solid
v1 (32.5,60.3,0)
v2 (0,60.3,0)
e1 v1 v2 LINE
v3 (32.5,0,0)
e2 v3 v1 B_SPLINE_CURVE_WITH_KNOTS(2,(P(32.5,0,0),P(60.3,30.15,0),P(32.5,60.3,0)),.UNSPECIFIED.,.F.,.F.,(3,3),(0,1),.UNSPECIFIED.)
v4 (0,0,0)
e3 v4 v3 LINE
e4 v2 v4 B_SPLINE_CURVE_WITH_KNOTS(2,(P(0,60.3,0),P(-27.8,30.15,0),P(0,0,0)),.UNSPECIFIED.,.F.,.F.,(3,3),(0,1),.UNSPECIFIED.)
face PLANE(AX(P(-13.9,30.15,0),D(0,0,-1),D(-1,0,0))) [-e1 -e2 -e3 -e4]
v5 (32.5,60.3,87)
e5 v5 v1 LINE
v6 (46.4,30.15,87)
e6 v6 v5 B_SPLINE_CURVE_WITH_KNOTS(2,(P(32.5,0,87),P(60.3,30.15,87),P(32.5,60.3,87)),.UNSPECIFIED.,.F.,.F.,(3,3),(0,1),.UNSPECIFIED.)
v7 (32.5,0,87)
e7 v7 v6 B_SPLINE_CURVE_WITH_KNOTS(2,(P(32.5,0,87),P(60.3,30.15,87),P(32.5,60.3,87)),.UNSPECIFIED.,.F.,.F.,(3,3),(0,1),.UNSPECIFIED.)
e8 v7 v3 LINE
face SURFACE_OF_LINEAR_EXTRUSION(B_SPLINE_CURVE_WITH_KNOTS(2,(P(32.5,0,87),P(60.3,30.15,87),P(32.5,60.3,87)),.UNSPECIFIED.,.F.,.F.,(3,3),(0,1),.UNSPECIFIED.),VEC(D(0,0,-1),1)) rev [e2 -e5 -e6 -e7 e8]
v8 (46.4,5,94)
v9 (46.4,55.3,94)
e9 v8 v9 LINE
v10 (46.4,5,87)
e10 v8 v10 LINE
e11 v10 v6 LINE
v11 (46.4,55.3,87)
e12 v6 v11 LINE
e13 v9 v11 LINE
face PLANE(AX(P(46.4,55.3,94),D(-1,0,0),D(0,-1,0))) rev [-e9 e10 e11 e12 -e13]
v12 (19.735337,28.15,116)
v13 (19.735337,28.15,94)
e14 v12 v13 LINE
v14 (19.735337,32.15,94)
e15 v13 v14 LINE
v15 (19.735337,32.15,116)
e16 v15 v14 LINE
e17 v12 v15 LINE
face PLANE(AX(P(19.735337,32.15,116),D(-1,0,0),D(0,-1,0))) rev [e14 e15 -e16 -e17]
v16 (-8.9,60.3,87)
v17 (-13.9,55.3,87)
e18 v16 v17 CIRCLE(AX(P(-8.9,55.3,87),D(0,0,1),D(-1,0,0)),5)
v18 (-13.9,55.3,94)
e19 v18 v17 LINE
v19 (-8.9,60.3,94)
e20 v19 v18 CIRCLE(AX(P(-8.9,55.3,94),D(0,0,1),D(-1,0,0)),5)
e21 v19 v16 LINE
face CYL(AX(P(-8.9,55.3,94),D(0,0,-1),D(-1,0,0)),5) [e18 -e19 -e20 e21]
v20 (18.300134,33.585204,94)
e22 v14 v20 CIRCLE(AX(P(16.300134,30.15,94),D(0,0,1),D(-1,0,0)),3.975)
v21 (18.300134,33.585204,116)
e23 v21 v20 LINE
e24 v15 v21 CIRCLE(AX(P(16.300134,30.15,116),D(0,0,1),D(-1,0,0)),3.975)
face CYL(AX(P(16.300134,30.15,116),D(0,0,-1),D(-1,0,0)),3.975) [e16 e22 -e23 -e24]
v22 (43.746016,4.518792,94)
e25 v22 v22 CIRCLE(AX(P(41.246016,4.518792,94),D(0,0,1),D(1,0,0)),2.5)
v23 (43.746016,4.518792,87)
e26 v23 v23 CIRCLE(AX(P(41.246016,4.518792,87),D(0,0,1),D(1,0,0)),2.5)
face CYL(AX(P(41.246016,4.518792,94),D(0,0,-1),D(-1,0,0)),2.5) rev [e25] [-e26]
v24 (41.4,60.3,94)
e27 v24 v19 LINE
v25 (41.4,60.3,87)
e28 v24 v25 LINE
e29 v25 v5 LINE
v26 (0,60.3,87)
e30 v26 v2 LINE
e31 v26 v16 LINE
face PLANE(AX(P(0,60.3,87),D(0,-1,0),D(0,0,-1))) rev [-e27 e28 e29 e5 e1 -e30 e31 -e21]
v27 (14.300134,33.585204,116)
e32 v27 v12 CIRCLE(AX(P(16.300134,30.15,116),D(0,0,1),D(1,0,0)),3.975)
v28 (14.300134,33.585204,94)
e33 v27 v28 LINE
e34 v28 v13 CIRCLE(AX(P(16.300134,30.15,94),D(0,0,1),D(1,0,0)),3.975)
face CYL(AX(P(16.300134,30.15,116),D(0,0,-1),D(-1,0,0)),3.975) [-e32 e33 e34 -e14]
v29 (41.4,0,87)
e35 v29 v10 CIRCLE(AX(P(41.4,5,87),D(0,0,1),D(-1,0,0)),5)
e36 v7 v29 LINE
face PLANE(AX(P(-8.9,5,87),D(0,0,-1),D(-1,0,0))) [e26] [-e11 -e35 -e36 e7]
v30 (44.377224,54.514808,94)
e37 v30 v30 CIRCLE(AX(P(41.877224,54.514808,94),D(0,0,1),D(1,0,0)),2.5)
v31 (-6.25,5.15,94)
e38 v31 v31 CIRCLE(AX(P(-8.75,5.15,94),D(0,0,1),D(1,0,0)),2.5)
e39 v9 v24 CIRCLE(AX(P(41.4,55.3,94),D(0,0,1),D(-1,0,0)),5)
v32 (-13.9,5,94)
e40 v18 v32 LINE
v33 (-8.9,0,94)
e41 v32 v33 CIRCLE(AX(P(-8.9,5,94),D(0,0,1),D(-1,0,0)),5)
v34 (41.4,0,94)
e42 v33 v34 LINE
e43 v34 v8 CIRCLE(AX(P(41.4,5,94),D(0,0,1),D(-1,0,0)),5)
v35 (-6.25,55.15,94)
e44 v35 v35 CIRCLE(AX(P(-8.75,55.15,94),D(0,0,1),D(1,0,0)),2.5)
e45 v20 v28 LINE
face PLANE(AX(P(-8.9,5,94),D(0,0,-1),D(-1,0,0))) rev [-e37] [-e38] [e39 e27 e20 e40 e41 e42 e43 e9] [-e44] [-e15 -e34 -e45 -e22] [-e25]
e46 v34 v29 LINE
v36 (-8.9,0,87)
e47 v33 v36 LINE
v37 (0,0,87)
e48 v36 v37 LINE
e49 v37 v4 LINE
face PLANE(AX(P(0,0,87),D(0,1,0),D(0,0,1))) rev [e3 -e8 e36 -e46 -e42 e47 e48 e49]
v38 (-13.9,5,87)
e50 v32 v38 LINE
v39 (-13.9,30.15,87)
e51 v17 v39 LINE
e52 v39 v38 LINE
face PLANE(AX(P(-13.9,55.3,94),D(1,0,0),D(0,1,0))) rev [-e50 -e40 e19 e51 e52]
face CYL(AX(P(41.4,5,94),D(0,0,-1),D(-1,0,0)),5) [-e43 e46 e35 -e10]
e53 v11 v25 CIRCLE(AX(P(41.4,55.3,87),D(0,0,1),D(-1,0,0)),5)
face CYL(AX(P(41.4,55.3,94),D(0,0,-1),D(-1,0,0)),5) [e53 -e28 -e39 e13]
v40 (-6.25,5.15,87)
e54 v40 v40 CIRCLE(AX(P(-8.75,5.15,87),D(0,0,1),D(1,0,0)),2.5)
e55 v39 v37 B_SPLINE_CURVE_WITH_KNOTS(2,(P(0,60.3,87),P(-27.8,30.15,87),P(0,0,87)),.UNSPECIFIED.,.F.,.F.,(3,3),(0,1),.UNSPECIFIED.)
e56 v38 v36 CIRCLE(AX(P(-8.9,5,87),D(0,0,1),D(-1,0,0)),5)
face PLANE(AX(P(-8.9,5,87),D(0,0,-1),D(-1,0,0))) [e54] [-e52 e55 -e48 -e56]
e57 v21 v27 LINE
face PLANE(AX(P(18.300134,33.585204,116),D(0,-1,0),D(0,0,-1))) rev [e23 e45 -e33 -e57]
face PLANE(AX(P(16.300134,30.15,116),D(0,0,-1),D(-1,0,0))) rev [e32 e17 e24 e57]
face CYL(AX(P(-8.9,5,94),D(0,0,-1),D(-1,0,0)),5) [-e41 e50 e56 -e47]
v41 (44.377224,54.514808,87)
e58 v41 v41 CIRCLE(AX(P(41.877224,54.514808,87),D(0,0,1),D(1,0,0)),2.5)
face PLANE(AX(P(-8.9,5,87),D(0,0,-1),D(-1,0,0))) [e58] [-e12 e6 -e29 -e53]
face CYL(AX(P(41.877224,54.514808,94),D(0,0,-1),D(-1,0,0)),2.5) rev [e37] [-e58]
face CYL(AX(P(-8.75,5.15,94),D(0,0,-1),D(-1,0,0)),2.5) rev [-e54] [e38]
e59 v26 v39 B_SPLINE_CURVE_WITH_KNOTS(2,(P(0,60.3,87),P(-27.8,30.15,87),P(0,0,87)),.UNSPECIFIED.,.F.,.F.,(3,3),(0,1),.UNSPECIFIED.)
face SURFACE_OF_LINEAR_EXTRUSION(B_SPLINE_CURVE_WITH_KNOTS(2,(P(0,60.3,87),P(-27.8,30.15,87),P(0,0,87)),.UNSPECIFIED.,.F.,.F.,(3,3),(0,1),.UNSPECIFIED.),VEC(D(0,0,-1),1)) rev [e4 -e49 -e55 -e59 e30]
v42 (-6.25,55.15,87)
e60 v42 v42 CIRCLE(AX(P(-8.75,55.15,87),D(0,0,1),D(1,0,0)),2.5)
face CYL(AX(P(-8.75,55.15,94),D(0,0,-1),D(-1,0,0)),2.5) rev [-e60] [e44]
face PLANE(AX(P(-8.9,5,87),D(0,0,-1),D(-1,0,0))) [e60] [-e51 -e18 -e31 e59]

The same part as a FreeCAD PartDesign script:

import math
import FreeCAD as App
import Part
import Sketcher
from FreeCAD import Vector

doc = App.newDocument("Part")
params = doc.addObject("Spreadsheet::Sheet", "Params")
for row, (alias, value) in enumerate([
    ("pad1_length", "87 mm"),
    ("sketch2_diameter", "5 mm"),
    ("sketch2_radius", "5 mm"),
    ("sketch2_width", "50.3 mm"),
    ("pad2_length", "7 mm"),
    ("sketch3_width", "4 mm"),
    ("pad3_length", "22 mm"),
], start=1):
    params.set(f"A{row}", alias)
    params.set(f"B{row}", "=" + value)
    params.setAlias(f"B{row}", alias)

body = doc.addObject("PartDesign::Body", "Body")

# Sketch on XY plane
sketch1 = body.newObject("Sketcher::SketchObject", "Sketch")
sketch1.AttachmentSupport = (doc.getObject("XY_Plane"), [""])
sketch1.MapMode = "FlatFace"
sketch1.addGeometry([
    Part.LineSegment(Vector(0, 0, 0), Vector(32.5, 0, 0)),
    Part.BSplineCurve([Vector(32.5, 60.3, 0), Vector(60.3, 30.15, 0), Vector(32.5, 0, 0)], [3, 3], [0, 1], False, 2, [1, 1, 1], False),
    Part.LineSegment(Vector(32.5, 60.3, 0), Vector(0, 60.3, 0)),
    Part.BSplineCurve([Vector(0, 60.3, 0), Vector(-27.8, 30.15, 0), Vector(0, 0, 0)], [3, 3], [0, 1], False, 2, [1, 1, 1], False),
], False)
sketch1.addConstraint([
    Sketcher.Constraint("Block", 1),
    Sketcher.Constraint("Block", 3),
    Sketcher.Constraint("Coincident", 0, 2, 1, 2),
    Sketcher.Constraint("Coincident", 1, 1, 2, 1),
    Sketcher.Constraint("Coincident", 2, 2, 3, 1),
    Sketcher.Constraint("Coincident", 3, 2, 0, 1),
])
pad1 = body.newObject("PartDesign::Pad", "Pad")
pad1.Profile = sketch1
pad1.setExpression("Length", "Params.pad1_length")

# Sketch on XY plane
sketch2 = body.newObject("Sketcher::SketchObject", "Sketch001")
sketch2.AttachmentSupport = (doc.getObject("XY_Plane"), [""])
sketch2.MapMode = "FlatFace"
sketch2.AttachmentOffset = App.Placement(Vector(0, 0, 87), App.Rotation())
sketch2.addGeometry([
    Part.LineSegment(Vector(-13.9, 55.3, 0), Vector(-13.9, 5, 0)),  # 0
    Part.ArcOfCircle(Part.Circle(Vector(-8.9, 5, 0), Vector(0, 0, 1), 5), math.radians(180), math.radians(270)),  # 1
    Part.LineSegment(Vector(-8.9, 0, 0), Vector(41.4, 0, 0)),  # 2
    Part.ArcOfCircle(Part.Circle(Vector(41.4, 5, 0), Vector(0, 0, 1), 5), math.radians(-90), math.radians(0)),  # 3
    Part.LineSegment(Vector(46.4, 5, 0), Vector(46.4, 55.3, 0)),  # 4
    Part.ArcOfCircle(Part.Circle(Vector(41.4, 55.3, 0), Vector(0, 0, 1), 5), math.radians(0), math.radians(90)),  # 5
    Part.LineSegment(Vector(41.4, 60.3, 0), Vector(-8.9, 60.3, 0)),  # 6
    Part.ArcOfCircle(Part.Circle(Vector(-8.9, 55.3, 0), Vector(0, 0, 1), 5), math.radians(90), math.radians(180)),  # 7
    Part.Circle(Vector(-8.75, 5.15, 0), Vector(0, 0, 1), 2.5),  # 8
    Part.Circle(Vector(41.246016, 4.518792, 0), Vector(0, 0, 1), 2.5),  # 9
    Part.Circle(Vector(-8.75, 55.15, 0), Vector(0, 0, 1), 2.5),  # 10
    Part.Circle(Vector(41.877224, 54.514808, 0), Vector(0, 0, 1), 2.5),  # 11
], False)
sketch2.addConstraint([
    Sketcher.Constraint("Tangent", 0, 2, 1, 1),
    Sketcher.Constraint("Tangent", 1, 2, 2, 1),
    Sketcher.Constraint("Tangent", 2, 2, 3, 1),
    Sketcher.Constraint("Tangent", 3, 2, 4, 1),
    Sketcher.Constraint("Tangent", 4, 2, 5, 1),
    Sketcher.Constraint("Tangent", 5, 2, 6, 1),
    Sketcher.Constraint("Tangent", 6, 2, 7, 1),
    Sketcher.Constraint("Tangent", 7, 2, 0, 1),
    Sketcher.Constraint("Vertical", 0),
    Sketcher.Constraint("Horizontal", 2),
    Sketcher.Constraint("Vertical", 4),
    Sketcher.Constraint("Horizontal", 6),
    Sketcher.Constraint("Equal", 1, 3),
    Sketcher.Constraint("Equal", 3, 5),
    Sketcher.Constraint("Equal", 5, 7),
    Sketcher.Constraint("Equal", 8, 9),
    Sketcher.Constraint("Equal", 9, 10),
    Sketcher.Constraint("Equal", 10, 11),
    Sketcher.Constraint("PointOnObject", 1, 2, -1),
    Sketcher.Constraint("Vertical", 8, 3, 10, 3),
    Sketcher.Constraint("Equal", 6, 0),
    Sketcher.Constraint("Diameter", 8, 5.0),
    Sketcher.Constraint("Radius", 1, 5.0),
    Sketcher.Constraint("DistanceX", 2, 1, 2, 2, 50.3),
    Sketcher.Constraint("DistanceY", 8, 3, 10, 3, 50.0),
    Sketcher.Constraint("DistanceX", 1, 3, -1, 1, 8.9),
    Sketcher.Constraint("DistanceX", 8, 3, -1, 1, 8.75),
    Sketcher.Constraint("DistanceY", -1, 1, 8, 3, 5.15),
    Sketcher.Constraint("DistanceX", -1, 1, 9, 3, 41.246016),
    Sketcher.Constraint("DistanceY", -1, 1, 9, 3, 4.518792),
    Sketcher.Constraint("DistanceX", -1, 1, 11, 3, 41.877224),
    Sketcher.Constraint("DistanceY", -1, 1, 11, 3, 54.514808),
])
sketch2.setExpression("Constraints[21]", "Params.sketch2_diameter")
sketch2.setExpression("Constraints[22]", "Params.sketch2_radius")
sketch2.setExpression("Constraints[23]", "Params.sketch2_width")
pad2 = body.newObject("PartDesign::Pad", "Pad001")
pad2.Profile = sketch2
pad2.setExpression("Length", "Params.pad2_length")

# Sketch on XY plane
sketch3 = body.newObject("Sketcher::SketchObject", "Sketch002")
sketch3.AttachmentSupport = (doc.getObject("XY_Plane"), [""])
sketch3.MapMode = "FlatFace"
sketch3.AttachmentOffset = App.Placement(Vector(0, 0, 94), App.Rotation())
sketch3.addGeometry([
    Part.LineSegment(Vector(18.300134, 33.585204, 0), Vector(14.300134, 33.585204, 0)),
    Part.ArcOfCircle(Part.Circle(Vector(16.300134, 30.15, 0), Vector(0, 0, 1), 3.975), math.radians(120.208268), math.radians(329.791732)),
    Part.LineSegment(Vector(19.735337, 28.15, 0), Vector(19.735337, 32.15, 0)),
    Part.ArcOfCircle(Part.Circle(Vector(16.300134, 30.15, 0), Vector(0, 0, 1), 3.975), math.radians(30.208268), math.radians(59.791732)),
], False)
sketch3.addConstraint([
    Sketcher.Constraint("Coincident", 0, 2, 1, 1),
    Sketcher.Constraint("Coincident", 1, 2, 2, 1),
    Sketcher.Constraint("Coincident", 2, 2, 3, 1),
    Sketcher.Constraint("Coincident", 3, 2, 0, 1),
    Sketcher.Constraint("Horizontal", 0),
    Sketcher.Constraint("Vertical", 2),
    Sketcher.Constraint("Coincident", 3, 3, 1, 3),
    Sketcher.Constraint("Equal", 1, 3),
    Sketcher.Constraint("Equal", 0, 2),
    Sketcher.Constraint("DistanceX", 0, 2, 0, 1, 4.0),
    Sketcher.Constraint("Radius", 1, 3.975),
    Sketcher.Constraint("DistanceY", -1, 1, 1, 3, 30.15),
    Sketcher.Constraint("DistanceX", -1, 1, 1, 3, 16.300134),
])
sketch3.setExpression("Constraints[9]", "Params.sketch3_width")
pad3 = body.newObject("PartDesign::Pad", "Pad002")
pad3.Profile = sketch3
pad3.setExpression("Length", "Params.pad3_length")

doc.recompute()
